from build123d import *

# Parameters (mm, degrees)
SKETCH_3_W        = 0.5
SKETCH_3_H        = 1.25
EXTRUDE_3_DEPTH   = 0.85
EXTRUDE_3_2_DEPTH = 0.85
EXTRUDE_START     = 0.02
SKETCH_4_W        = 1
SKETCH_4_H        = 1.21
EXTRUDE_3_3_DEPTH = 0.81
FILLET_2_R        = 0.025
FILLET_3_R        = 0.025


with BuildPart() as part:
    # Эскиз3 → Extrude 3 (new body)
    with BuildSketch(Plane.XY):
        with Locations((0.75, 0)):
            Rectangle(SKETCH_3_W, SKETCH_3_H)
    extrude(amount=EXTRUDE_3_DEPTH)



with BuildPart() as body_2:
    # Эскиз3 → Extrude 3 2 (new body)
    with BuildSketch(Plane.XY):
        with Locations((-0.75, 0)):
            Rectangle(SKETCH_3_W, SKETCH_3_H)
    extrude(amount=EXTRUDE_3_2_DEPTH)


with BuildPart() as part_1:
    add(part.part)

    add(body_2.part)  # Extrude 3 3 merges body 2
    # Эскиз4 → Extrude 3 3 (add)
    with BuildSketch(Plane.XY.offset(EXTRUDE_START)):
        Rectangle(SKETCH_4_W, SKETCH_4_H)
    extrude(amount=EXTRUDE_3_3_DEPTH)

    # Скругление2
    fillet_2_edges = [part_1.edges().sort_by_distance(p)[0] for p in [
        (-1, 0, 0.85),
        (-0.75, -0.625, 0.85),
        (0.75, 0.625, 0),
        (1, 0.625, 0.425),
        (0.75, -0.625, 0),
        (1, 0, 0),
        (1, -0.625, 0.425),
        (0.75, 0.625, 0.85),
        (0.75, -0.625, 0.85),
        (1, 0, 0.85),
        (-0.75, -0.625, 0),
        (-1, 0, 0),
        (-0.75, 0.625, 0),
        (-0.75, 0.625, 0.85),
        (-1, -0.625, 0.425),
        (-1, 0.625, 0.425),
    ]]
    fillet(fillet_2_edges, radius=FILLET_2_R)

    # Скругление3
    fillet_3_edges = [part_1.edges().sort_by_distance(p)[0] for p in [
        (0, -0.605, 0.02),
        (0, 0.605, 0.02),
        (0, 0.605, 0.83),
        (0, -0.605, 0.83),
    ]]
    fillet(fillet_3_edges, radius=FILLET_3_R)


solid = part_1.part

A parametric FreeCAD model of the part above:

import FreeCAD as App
import Part
import Sketcher


def edges_at(feature, points):
    """Names of the edges that pass closest to the given points."""
    edges = feature.Shape.Edges
    near = lambda p: min(range(len(edges)), key=lambda i: edges[i].distToShape(Part.Vertex(*p))[0])
    return sorted({f"Edge{near(p) + 1}" for p in points})


def add_polygon(sketch, points):
    """Adds a closed chain of lines whose ends are joined by coincident constraints."""
    first, n = sketch.GeometryCount, len(points)
    for a, b in zip(points, points[1:] + points[:1]):
        sketch.addGeometry(Part.LineSegment(App.Vector(*a, 0), App.Vector(*b, 0)), False)
    for i in range(n):
        sketch.addConstraint(Sketcher.Constraint("Coincident", first + i, 2, first + (i + 1) % n, 1))

doc = App.newDocument("Part")
body = doc.addObject("PartDesign::Body", "Body")

sketch1 = body.newObject("Sketcher::SketchObject", "Sketch")
sketch1.AttachmentSupport = (doc.getObject("XY_Plane"), [""])
sketch1.MapMode = "FlatFace"
add_polygon(sketch1, [(0.5, 0.625), (0.5, -0.625), (1, -0.625), (1, 0.625)])
sketch1.addConstraint(Sketcher.Constraint("Vertical", 0))
sketch1.addConstraint(Sketcher.Constraint("Horizontal", 1))
sketch1.addConstraint(Sketcher.Constraint("Vertical", 2))
sketch1.addConstraint(Sketcher.Constraint("Horizontal", 3))
sketch1.addConstraint(Sketcher.Constraint("DistanceX", 1, 1, 1, 2, 0.5))
sketch1.addConstraint(Sketcher.Constraint("DistanceX", -1, 1, 1, 2, 1.0))
sketch1.addConstraint(Sketcher.Constraint("DistanceY", 0, 2, 0, 1, 1.25))
sketch1.addConstraint(Sketcher.Constraint("DistanceY", 0, 2, -1, 1, 0.625))
pad1 = body.newObject("PartDesign::Pad", "Pad")
pad1.Profile = sketch1
pad1.Length = 0.85
body2 = doc.addObject("PartDesign::Body", "Body001")

sketch2 = body2.newObject("Sketcher::SketchObject", "Sketch001")
sketch2.AttachmentSupport = (doc.getObject("XY_Plane001"), [""])
sketch2.MapMode = "FlatFace"
add_polygon(sketch2, [(-1, 0.625), (-1, -0.625), (-0.5, -0.625), (-0.5, 0.625)])
sketch2.addConstraint(Sketcher.Constraint("Vertical", 0))
sketch2.addConstraint(Sketcher.Constraint("Horizontal", 1))
sketch2.addConstraint(Sketcher.Constraint("Vertical", 2))
sketch2.addConstraint(Sketcher.Constraint("Horizontal", 3))
sketch2.addConstraint(Sketcher.Constraint("DistanceX", 1, 1, 1, 2, 0.5))
sketch2.addConstraint(Sketcher.Constraint("DistanceX", 0, 2, -1, 1, 1.0))
sketch2.addConstraint(Sketcher.Constraint("DistanceY", 0, 2, 0, 1, 1.25))
sketch2.addConstraint(Sketcher.Constraint("DistanceY", 0, 2, -1, 1, 0.625))
pad2 = body2.newObject("PartDesign::Pad", "Pad001")
pad2.Profile = sketch2
pad2.Length = 0.85
body.AllowCompound = True
doc.recompute()

boolean = body.newObject("PartDesign::Boolean", "Boolean")
boolean.Type = "Fuse"
boolean.addObjects([body2])

sketch3 = body.newObject("Sketcher::SketchObject", "Sketch002")
sketch3.AttachmentSupport = (doc.getObject("XY_Plane"), [""])
sketch3.MapMode = "FlatFace"
sketch3.AttachmentOffset = App.Placement(App.Vector(0, 0, 0.02), App.Rotation())
add_polygon(sketch3, [(-0.5, 0.605), (-0.5, -0.605), (0.5, -0.605), (0.5, 0.605)])
sketch3.addConstraint(Sketcher.Constraint("Vertical", 0))
sketch3.addConstraint(Sketcher.Constraint("Horizontal", 1))
sketch3.addConstraint(Sketcher.Constraint("Vertical", 2))
sketch3.addConstraint(Sketcher.Constraint("Horizontal", 3))
sketch3.addConstraint(Sketcher.Constraint("Symmetric", 0, 2, 2, 2, -1, 1))
sketch3.addConstraint(Sketcher.Constraint("DistanceX", 1, 1, 1, 2, 1.0))
sketch3.addConstraint(Sketcher.Constraint("DistanceY", 0, 2, 0, 1, 1.21))
pad3 = body.newObject("PartDesign::Pad", "Pad002")
pad3.Profile = sketch3
pad3.Length = 0.81
doc.recompute()

fillet = body.newObject("PartDesign::Fillet", "Fillet")
fillet.Base = (pad3, edges_at(pad3, [
    (-1, 0, 0.85),
    (-0.75, -0.625, 0.85),
    (0.75, 0.625, 0),
    (1, 0.625, 0.425),
    (0.75, -0.625, 0),
    (1, 0, 0),
    (1, -0.625, 0.425),
    (0.75, 0.625, 0.85),
    (0.75, -0.625, 0.85),
    (1, 0, 0.85),
    (-0.75, -0.625, 0),
    (-1, 0, 0),
    (-0.75, 0.625, 0),
    (-0.75, 0.625, 0.85),
    (-1, -0.625, 0.425),
    (-1, 0.625, 0.425),
]))
fillet.Radius = 0.025
doc.recompute()

fillet2 = body.newObject("PartDesign::Fillet", "Fillet001")
fillet2.Base = (fillet, edges_at(fillet, [
    (0, -0.605, 0.02),
    (0, 0.605, 0.02),
    (0, 0.605, 0.83),
    (0, -0.605, 0.83),
]))
fillet2.Radius = 0.025

doc.recompute()
